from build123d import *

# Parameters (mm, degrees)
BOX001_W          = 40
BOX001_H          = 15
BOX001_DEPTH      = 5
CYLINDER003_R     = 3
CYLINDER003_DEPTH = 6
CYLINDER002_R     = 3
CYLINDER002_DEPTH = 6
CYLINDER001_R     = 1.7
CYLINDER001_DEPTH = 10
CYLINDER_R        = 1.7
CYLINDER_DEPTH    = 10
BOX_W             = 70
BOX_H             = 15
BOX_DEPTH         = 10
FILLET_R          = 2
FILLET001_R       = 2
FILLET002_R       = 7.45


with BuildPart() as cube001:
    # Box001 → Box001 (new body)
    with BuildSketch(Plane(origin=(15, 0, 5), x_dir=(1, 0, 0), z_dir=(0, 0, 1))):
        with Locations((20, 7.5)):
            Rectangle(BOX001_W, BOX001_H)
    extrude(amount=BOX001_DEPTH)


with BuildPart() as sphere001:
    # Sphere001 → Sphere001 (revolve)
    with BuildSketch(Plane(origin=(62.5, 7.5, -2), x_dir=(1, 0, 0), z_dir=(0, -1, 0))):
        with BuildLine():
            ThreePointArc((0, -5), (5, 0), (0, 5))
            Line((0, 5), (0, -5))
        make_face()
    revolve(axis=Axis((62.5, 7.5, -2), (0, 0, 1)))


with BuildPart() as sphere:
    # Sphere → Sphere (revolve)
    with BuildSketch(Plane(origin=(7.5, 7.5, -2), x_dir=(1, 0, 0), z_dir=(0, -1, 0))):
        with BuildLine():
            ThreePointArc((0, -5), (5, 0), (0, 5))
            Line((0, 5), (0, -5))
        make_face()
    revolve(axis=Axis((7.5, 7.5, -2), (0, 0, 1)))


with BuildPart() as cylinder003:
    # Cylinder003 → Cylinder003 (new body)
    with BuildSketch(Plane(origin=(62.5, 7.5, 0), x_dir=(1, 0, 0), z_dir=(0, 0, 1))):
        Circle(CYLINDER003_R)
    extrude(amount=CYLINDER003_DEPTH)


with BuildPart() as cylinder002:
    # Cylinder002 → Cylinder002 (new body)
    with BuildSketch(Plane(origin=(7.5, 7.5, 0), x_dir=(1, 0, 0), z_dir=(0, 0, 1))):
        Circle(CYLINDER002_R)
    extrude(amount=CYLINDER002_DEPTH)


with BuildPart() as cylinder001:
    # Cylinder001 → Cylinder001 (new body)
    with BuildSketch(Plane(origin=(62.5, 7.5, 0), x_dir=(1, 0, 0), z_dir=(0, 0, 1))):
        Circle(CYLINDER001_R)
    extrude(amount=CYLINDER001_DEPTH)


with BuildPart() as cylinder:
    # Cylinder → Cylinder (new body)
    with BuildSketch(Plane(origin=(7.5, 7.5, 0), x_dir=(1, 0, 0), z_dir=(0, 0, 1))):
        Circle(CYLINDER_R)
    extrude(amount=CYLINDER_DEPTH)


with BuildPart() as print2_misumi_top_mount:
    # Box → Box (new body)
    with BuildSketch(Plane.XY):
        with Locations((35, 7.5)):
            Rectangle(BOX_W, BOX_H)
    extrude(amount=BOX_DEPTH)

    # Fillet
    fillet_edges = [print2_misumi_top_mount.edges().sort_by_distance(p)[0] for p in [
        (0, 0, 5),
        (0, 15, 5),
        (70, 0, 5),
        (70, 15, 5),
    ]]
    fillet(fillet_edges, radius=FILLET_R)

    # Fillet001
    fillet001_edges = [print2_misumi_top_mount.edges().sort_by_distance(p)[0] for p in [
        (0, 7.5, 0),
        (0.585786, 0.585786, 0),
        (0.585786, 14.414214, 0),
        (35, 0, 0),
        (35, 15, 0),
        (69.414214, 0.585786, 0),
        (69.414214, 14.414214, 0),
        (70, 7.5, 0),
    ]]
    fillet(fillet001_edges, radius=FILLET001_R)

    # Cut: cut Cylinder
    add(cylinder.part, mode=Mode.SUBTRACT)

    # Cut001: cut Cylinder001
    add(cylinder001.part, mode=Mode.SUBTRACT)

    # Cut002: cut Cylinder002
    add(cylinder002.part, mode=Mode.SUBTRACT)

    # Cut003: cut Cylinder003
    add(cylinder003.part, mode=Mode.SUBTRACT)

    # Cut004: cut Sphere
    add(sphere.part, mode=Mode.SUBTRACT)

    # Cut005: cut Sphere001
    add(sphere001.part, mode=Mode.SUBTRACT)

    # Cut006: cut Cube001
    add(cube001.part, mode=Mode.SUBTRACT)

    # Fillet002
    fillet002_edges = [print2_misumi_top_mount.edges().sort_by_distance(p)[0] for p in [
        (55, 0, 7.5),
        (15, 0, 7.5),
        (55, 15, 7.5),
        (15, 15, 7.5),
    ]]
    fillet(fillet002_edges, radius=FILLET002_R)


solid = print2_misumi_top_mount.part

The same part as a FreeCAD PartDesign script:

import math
import FreeCAD as App
import Part
import Sketcher

V = App.Vector
Q = App.Units.Quantity


def edges_at(feature, points):
    """Names of the edges that pass closest to the given points."""
    edges = feature.Shape.Edges
    near = lambda p: min(range(len(edges)), key=lambda i: edges[i].distToShape(Part.Vertex(*p))[0])
    return sorted({f"Edge{near(p) + 1}" for p in points})

doc = App.newDocument("Part")
body = doc.addObject("PartDesign::Body", "Body")

# Sketch on XY plane
sketch1 = body.newObject("Sketcher::SketchObject", "Sketch")
sketch1.AttachmentSupport = (doc.getObject("XY_Plane"), [""])
sketch1.MapMode = "FlatFace"
sketch1.AttachmentOffset = App.Placement(V(0, 0, 5), App.Rotation())
sketch1.addGeometry(Part.LineSegment(V(15, 15, 0), V(15, 0, 0)), False)
sketch1.addGeometry(Part.LineSegment(V(15, 0, 0), V(55, 0, 0)), False)
sketch1.addGeometry(Part.LineSegment(V(55, 0, 0), V(55, 15, 0)), False)
sketch1.addGeometry(Part.LineSegment(V(55, 15, 0), V(15, 15, 0)), False)
sketch1.addConstraint(Sketcher.Constraint("Coincident", 0, 2, 1, 1))
sketch1.addConstraint(Sketcher.Constraint("Coincident", 1, 2, 2, 1))
sketch1.addConstraint(Sketcher.Constraint("Coincident", 2, 2, 3, 1))
sketch1.addConstraint(Sketcher.Constraint("Coincident", 3, 2, 0, 1))
sketch1.addConstraint(Sketcher.Constraint("Vertical", 0))
sketch1.addConstraint(Sketcher.Constraint("Horizontal", 1))
sketch1.addConstraint(Sketcher.Constraint("Vertical", 2))
sketch1.addConstraint(Sketcher.Constraint("Horizontal", 3))
sketch1.addConstraint(Sketcher.Constraint("PointOnObject", 0, 2, -1))
sketch1.addConstraint(Sketcher.Constraint("DistanceX", 1, 1, 1, 2, Q("40 mm")))
sketch1.addConstraint(Sketcher.Constraint("DistanceY", 0, 2, 0, 1, Q("15 mm")))
sketch1.addConstraint(Sketcher.Constraint("DistanceX", -1, 1, 0, 2, Q("15 mm")))
pad1 = body.newObject("PartDesign::Pad", "Pad")
pad1.Profile = sketch1
pad1.Length = 5
body2 = doc.addObject("PartDesign::Body", "Body001")

# Sketch on XZ plane
sketch2 = body2.newObject("Sketcher::SketchObject", "Sketch001")
sketch2.AttachmentSupport = (doc.getObject("XZ_Plane001"), [""])
sketch2.MapMode = "FlatFace"
sketch2.AttachmentOffset = App.Placement(V(0, 0, -7.5), App.Rotation())
sketch2.addGeometry(Part.ArcOfCircle(Part.Circle(V(62, -2, 0), V(0, 0, 1), 5), math.radians(-90), math.radians(90)), False)
sketch2.addGeometry(Part.LineSegment(V(62, 3, 0), V(62, -7, 0)), False)
sketch2.addGeometry(Part.LineSegment(V(62, -7, 0), V(62, 3, 0)), True)  # axis
sketch2.addConstraint(Sketcher.Constraint("Coincident", 0, 1, 1, 2))
sketch2.addConstraint(Sketcher.Constraint("Coincident", 1, 1, 0, 2))
sketch2.addConstraint(Sketcher.Constraint("Vertical", 1))
sketch2.addConstraint(Sketcher.Constraint("Vertical", 2))
sketch2.addConstraint(Sketcher.Constraint("Coincident", 2, 1, 0, 1))
sketch2.addConstraint(Sketcher.Constraint("Equal", 1, 2))
sketch2.addConstraint(Sketcher.Constraint("Radius", 0, Q("5 mm")))
sketch2.addConstraint(Sketcher.Constraint("DistanceY", 0, 3, -1, 1, Q("2 mm")))
sketch2.addConstraint(Sketcher.Constraint("DistanceX", -1, 1, 0, 3, Q("62.5 mm")))
sketch2.addConstraint(Sketcher.Constraint("DistanceX", -1, 1, 0, 1, Q("62.5 mm")))
revolution = body2.newObject("PartDesign::Revolution", "Revolution")
revolution.Profile = sketch2
revolution.ReferenceAxis = (sketch2, ["Axis0"])
revolution.Angle = 360
body3 = doc.addObject("PartDesign::Body", "Body002")

# Sketch on XZ plane
sketch3 = body3.newObject("Sketcher::SketchObject", "Sketch002")
sketch3.AttachmentSupport = (doc.getObject("XZ_Plane002"), [""])
sketch3.MapMode = "FlatFace"
sketch3.AttachmentOffset = App.Placement(V(0, 0, -7.5), App.Rotation())
sketch3.addGeometry(Part.ArcOfCircle(Part.Circle(V(8, -2, 0), V(0, 0, 1), 5), math.radians(-90), math.radians(90)), False)
sketch3.addGeometry(Part.LineSegment(V(8, 3, 0), V(8, -7, 0)), False)
sketch3.addGeometry(Part.LineSegment(V(8, -7, 0), V(8, 3, 0)), True)  # axis
sketch3.addConstraint(Sketcher.Constraint("Coincident", 0, 1, 1, 2))
sketch3.addConstraint(Sketcher.Constraint("Coincident", 1, 1, 0, 2))
sketch3.addConstraint(Sketcher.Constraint("Vertical", 1))
sketch3.addConstraint(Sketcher.Constraint("Vertical", 2))
sketch3.addConstraint(Sketcher.Constraint("Coincident", 2, 1, 0, 1))
sketch3.addConstraint(Sketcher.Constraint("Equal", 1, 2))
sketch3.addConstraint(Sketcher.Constraint("Radius", 0, Q("5 mm")))
sketch3.addConstraint(Sketcher.Constraint("DistanceY", 0, 3, -1, 1, Q("2 mm")))
sketch3.addConstraint(Sketcher.Constraint("DistanceX", -1, 1, 0, 3, Q("7.5 mm")))
sketch3.addConstraint(Sketcher.Constraint("DistanceX", -1, 1, 0, 1, Q("7.5 mm")))
revolution2 = body3.newObject("PartDesign::Revolution", "Revolution001")
revolution2.Profile = sketch3
revolution2.ReferenceAxis = (sketch3, ["Axis0"])
revolution2.Angle = 360
body4 = doc.addObject("PartDesign::Body", "Body003")

# Sketch on XY plane
sketch4 = body4.newObject("Sketcher::SketchObject", "Sketch003")
sketch4.AttachmentSupport = (doc.getObject("XY_Plane003"), [""])
sketch4.MapMode = "FlatFace"
sketch4.addGeometry(Part.Circle(V(62.5, 7.5, 0), V(0, 0, 1), 3), False)
sketch4.addConstraint(Sketcher.Constraint("Diameter", 0, Q("6 mm")))
sketch4.addConstraint(Sketcher.Constraint("DistanceX", -1, 1, 0, 3, Q("62.5 mm")))
sketch4.addConstraint(Sketcher.Constraint("DistanceY", -1, 1, 0, 3, Q("7.5 mm")))
pad2 = body4.newObject("PartDesign::Pad", "Pad001")
pad2.Profile = sketch4
pad2.Length = 6
body5 = doc.addObject("PartDesign::Body", "Body004")

# Sketch on XY plane
sketch5 = body5.newObject("Sketcher::SketchObject", "Sketch004")
sketch5.AttachmentSupport = (doc.getObject("XY_Plane004"), [""])
sketch5.MapMode = "FlatFace"
sketch5.addGeometry(Part.Circle(V(7.5, 7.5, 0), V(0, 0, 1), 3), False)
sketch5.addConstraint(Sketcher.Constraint("Diameter", 0, Q("6 mm")))
sketch5.addConstraint(Sketcher.Constraint("DistanceX", -1, 1, 0, 3, Q("7.5 mm")))
sketch5.addConstraint(Sketcher.Constraint("DistanceY", -1, 1, 0, 3, Q("7.5 mm")))
pad3 = body5.newObject("PartDesign::Pad", "Pad002")
pad3.Profile = sketch5
pad3.Length = 6
body6 = doc.addObject("PartDesign::Body", "Body005")

# Sketch on XY plane
sketch6 = body6.newObject("Sketcher::SketchObject", "Sketch005")
sketch6.AttachmentSupport = (doc.getObject("XY_Plane005"), [""])
sketch6.MapMode = "FlatFace"
sketch6.addGeometry(Part.Circle(V(62.5, 7.5, 0), V(0, 0, 1), 1.7), False)
sketch6.addConstraint(Sketcher.Constraint("Diameter", 0, Q("3.4 mm")))
sketch6.addConstraint(Sketcher.Constraint("DistanceX", -1, 1, 0, 3, Q("62.5 mm")))
sketch6.addConstraint(Sketcher.Constraint("DistanceY", -1, 1, 0, 3, Q("7.5 mm")))
pad4 = body6.newObject("PartDesign::Pad", "Pad003")
pad4.Profile = sketch6
pad4.Length = 10
body7 = doc.addObject("PartDesign::Body", "Body006")

# Sketch on XY plane
sketch7 = body7.newObject("Sketcher::SketchObject", "Sketch006")
sketch7.AttachmentSupport = (doc.getObject("XY_Plane006"), [""])
sketch7.MapMode = "FlatFace"
sketch7.addGeometry(Part.Circle(V(7.5, 7.5, 0), V(0, 0, 1), 1.7), False)
sketch7.addConstraint(Sketcher.Constraint("Diameter", 0, Q("3.4 mm")))
sketch7.addConstraint(Sketcher.Constraint("DistanceX", -1, 1, 0, 3, Q("7.5 mm")))
sketch7.addConstraint(Sketcher.Constraint("DistanceY", -1, 1, 0, 3, Q("7.5 mm")))
pad5 = body7.newObject("PartDesign::Pad", "Pad004")
pad5.Profile = sketch7
pad5.Length = 10
body8 = doc.addObject("PartDesign::Body", "Body007")

# Sketch on XY plane
sketch8 = body8.newObject("Sketcher::SketchObject", "Sketch007")
sketch8.AttachmentSupport = (doc.getObject("XY_Plane007"), [""])
sketch8.MapMode = "FlatFace"
sketch8.addGeometry(Part.LineSegment(V(0, 15, 0), V(0, 0, 0)), False)
sketch8.addGeometry(Part.LineSegment(V(0, 0, 0), V(70, 0, 0)), False)
sketch8.addGeometry(Part.LineSegment(V(70, 0, 0), V(70, 15, 0)), False)
sketch8.addGeometry(Part.LineSegment(V(70, 15, 0), V(0, 15, 0)), False)
sketch8.addConstraint(Sketcher.Constraint("Coincident", 0, 2, 1, 1))
sketch8.addConstraint(Sketcher.Constraint("Coincident", 1, 2, 2, 1))
sketch8.addConstraint(Sketcher.Constraint("Coincident", 2, 2, 3, 1))
sketch8.addConstraint(Sketcher.Constraint("Coincident", 3, 2, 0, 1))
sketch8.addConstraint(Sketcher.Constraint("Vertical", 0))
sketch8.addConstraint(Sketcher.Constraint("Horizontal", 1))
sketch8.addConstraint(Sketcher.Constraint("Vertical", 2))
sketch8.addConstraint(Sketcher.Constraint("Horizontal", 3))
sketch8.addConstraint(Sketcher.Constraint("Coincident", 0, 2, -1, 1))
sketch8.addConstraint(Sketcher.Constraint("DistanceX", 1, 1, 1, 2, Q("70 mm")))
sketch8.addConstraint(Sketcher.Constraint("DistanceY", 0, 2, 0, 1, Q("15 mm")))
pad6 = body8.newObject("PartDesign::Pad", "Pad005")
pad6.Profile = sketch8
pad6.Length = 10
doc.recompute()

fillet = body8.newObject("PartDesign::Fillet", "Fillet")
fillet.Base = (pad6, edges_at(pad6, [
    (0, 0, 5),
    (0, 15, 5),
    (70, 0, 5),
    (70, 15, 5),
]))
fillet.Radius = 2
doc.recompute()

fillet2 = body8.newObject("PartDesign::Fillet", "Fillet001")
fillet2.Base = (fillet, edges_at(fillet, [
    (0, 7.5, 0),
    (0.586, 0.586, 0),
    (0.586, 14.414, 0),
    (35, 0, 0),
    (35, 15, 0),
    (69.414, 0.586, 0),
    (69.414, 14.414, 0),
    (70, 7.5, 0),
]))
fillet2.Radius = 2
doc.recompute()

boolean = body8.newObject("PartDesign::Boolean", "Boolean")
boolean.Type = "Cut"
boolean.addObjects([body7])
doc.recompute()

boolean2 = body8.newObject("PartDesign::Boolean", "Boolean001")
boolean2.Type = "Cut"
boolean2.addObjects([body6])
doc.recompute()

boolean3 = body8.newObject("PartDesign::Boolean", "Boolean002")
boolean3.Type = "Cut"
boolean3.addObjects([body5])
doc.recompute()

boolean4 = body8.newObject("PartDesign::Boolean", "Boolean003")
boolean4.Type = "Cut"
boolean4.addObjects([body4])
doc.recompute()

boolean5 = body8.newObject("PartDesign::Boolean", "Boolean004")
boolean5.Type = "Cut"
boolean5.addObjects([body3])
doc.recompute()

boolean6 = body8.newObject("PartDesign::Boolean", "Boolean005")
boolean6.Type = "Cut"
boolean6.addObjects([body2])
doc.recompute()

boolean7 = body8.newObject("PartDesign::Boolean", "Boolean006")
boolean7.Type = "Cut"
boolean7.addObjects([body])
doc.recompute()

fillet3 = body8.newObject("PartDesign::Fillet", "Fillet002")
fillet3.Base = (boolean7, edges_at(boolean7, [
    (55, 0, 7.5),
    (15, 0, 7.5),
    (55, 15, 7.5),
    (15, 15, 7.5),
]))
fillet3.Radius = 7.45

doc.recompute()
